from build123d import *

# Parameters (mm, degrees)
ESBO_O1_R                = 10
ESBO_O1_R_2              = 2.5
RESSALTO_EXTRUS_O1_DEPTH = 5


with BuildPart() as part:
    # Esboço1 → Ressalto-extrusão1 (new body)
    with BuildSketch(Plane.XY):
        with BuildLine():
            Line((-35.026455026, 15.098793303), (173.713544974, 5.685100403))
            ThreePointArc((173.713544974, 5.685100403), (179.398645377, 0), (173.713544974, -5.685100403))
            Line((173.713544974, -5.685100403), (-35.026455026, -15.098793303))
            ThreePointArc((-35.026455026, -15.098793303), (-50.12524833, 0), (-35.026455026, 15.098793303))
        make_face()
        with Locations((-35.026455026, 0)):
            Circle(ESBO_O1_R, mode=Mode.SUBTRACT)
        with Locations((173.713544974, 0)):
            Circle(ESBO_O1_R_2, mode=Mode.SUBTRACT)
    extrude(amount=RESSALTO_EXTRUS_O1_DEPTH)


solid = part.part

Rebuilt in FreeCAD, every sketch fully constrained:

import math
import FreeCAD as App
import Part
import Sketcher
from FreeCAD import Vector
Q = App.Units.Quantity

doc = App.newDocument("Part")
body = doc.addObject("PartDesign::Body", "Body")

# Sketch on XY plane
sketch1 = body.newObject("Sketcher::SketchObject", "Sketch")
sketch1.AttachmentSupport = (doc.getObject("XY_Plane"), [""])
sketch1.MapMode = "FlatFace"
sketch1.addGeometry([
    Part.LineSegment(Vector(173.7, 5.7, 0), Vector(-35, 15.1, 0)),  # 0
    Part.ArcOfCircle(Part.Circle(Vector(-35, 0, 0), Vector(0, 0, 1), 15.1), math.radians(90), math.radians(270)),  # 1
    Part.LineSegment(Vector(-35, -15.1, 0), Vector(173.7, -5.7, 0)),  # 2
    Part.ArcOfCircle(Part.Circle(Vector(173.7, 0, 0), Vector(0, 0, 1), 5.7), math.radians(-90), math.radians(90)),  # 3
    Part.Circle(Vector(173.7, 0, 0), Vector(0, 0, 1), 2.5),  # 4
    Part.Circle(Vector(-35, 0, 0), Vector(0, 0, 1), 10),  # 5
], False)
sketch1.addConstraint([
    Sketcher.Constraint("Coincident", 0, 2, 1, 1),
    Sketcher.Constraint("Coincident", 1, 2, 2, 1),
    Sketcher.Constraint("Coincident", 2, 2, 3, 1),
    Sketcher.Constraint("Coincident", 3, 2, 0, 1),
    Sketcher.Constraint("Coincident", 4, 3, 3, 3),
    Sketcher.Constraint("Coincident", 5, 3, 1, 3),
    Sketcher.Constraint("Symmetric", 0, 2, 1, 2, -1),
    Sketcher.Constraint("Symmetric", 2, 2, 3, 2, -1),
    Sketcher.Constraint("Vertical", 5, 3, 0, 2),
    Sketcher.Constraint("Vertical", 4, 3, 2, 2),
    Sketcher.Constraint("Diameter", 4, Q("5 mm")),
    Sketcher.Constraint("Diameter", 5, Q("20 mm")),
    Sketcher.Constraint("Radius", 3, Q("5.6851 mm")),
    Sketcher.Constraint("DistanceX", 1, 3, 3, 3, Q("208.74 mm")),
    Sketcher.Constraint("Radius", 1, Q("15.098793 mm")),
    Sketcher.Constraint("DistanceX", 1, 3, -1, 1, Q("35.026455 mm")),
])
pad1 = body.newObject("PartDesign::Pad", "Pad")
pad1.Profile = sketch1
pad1.Length = 5

doc.recompute()
